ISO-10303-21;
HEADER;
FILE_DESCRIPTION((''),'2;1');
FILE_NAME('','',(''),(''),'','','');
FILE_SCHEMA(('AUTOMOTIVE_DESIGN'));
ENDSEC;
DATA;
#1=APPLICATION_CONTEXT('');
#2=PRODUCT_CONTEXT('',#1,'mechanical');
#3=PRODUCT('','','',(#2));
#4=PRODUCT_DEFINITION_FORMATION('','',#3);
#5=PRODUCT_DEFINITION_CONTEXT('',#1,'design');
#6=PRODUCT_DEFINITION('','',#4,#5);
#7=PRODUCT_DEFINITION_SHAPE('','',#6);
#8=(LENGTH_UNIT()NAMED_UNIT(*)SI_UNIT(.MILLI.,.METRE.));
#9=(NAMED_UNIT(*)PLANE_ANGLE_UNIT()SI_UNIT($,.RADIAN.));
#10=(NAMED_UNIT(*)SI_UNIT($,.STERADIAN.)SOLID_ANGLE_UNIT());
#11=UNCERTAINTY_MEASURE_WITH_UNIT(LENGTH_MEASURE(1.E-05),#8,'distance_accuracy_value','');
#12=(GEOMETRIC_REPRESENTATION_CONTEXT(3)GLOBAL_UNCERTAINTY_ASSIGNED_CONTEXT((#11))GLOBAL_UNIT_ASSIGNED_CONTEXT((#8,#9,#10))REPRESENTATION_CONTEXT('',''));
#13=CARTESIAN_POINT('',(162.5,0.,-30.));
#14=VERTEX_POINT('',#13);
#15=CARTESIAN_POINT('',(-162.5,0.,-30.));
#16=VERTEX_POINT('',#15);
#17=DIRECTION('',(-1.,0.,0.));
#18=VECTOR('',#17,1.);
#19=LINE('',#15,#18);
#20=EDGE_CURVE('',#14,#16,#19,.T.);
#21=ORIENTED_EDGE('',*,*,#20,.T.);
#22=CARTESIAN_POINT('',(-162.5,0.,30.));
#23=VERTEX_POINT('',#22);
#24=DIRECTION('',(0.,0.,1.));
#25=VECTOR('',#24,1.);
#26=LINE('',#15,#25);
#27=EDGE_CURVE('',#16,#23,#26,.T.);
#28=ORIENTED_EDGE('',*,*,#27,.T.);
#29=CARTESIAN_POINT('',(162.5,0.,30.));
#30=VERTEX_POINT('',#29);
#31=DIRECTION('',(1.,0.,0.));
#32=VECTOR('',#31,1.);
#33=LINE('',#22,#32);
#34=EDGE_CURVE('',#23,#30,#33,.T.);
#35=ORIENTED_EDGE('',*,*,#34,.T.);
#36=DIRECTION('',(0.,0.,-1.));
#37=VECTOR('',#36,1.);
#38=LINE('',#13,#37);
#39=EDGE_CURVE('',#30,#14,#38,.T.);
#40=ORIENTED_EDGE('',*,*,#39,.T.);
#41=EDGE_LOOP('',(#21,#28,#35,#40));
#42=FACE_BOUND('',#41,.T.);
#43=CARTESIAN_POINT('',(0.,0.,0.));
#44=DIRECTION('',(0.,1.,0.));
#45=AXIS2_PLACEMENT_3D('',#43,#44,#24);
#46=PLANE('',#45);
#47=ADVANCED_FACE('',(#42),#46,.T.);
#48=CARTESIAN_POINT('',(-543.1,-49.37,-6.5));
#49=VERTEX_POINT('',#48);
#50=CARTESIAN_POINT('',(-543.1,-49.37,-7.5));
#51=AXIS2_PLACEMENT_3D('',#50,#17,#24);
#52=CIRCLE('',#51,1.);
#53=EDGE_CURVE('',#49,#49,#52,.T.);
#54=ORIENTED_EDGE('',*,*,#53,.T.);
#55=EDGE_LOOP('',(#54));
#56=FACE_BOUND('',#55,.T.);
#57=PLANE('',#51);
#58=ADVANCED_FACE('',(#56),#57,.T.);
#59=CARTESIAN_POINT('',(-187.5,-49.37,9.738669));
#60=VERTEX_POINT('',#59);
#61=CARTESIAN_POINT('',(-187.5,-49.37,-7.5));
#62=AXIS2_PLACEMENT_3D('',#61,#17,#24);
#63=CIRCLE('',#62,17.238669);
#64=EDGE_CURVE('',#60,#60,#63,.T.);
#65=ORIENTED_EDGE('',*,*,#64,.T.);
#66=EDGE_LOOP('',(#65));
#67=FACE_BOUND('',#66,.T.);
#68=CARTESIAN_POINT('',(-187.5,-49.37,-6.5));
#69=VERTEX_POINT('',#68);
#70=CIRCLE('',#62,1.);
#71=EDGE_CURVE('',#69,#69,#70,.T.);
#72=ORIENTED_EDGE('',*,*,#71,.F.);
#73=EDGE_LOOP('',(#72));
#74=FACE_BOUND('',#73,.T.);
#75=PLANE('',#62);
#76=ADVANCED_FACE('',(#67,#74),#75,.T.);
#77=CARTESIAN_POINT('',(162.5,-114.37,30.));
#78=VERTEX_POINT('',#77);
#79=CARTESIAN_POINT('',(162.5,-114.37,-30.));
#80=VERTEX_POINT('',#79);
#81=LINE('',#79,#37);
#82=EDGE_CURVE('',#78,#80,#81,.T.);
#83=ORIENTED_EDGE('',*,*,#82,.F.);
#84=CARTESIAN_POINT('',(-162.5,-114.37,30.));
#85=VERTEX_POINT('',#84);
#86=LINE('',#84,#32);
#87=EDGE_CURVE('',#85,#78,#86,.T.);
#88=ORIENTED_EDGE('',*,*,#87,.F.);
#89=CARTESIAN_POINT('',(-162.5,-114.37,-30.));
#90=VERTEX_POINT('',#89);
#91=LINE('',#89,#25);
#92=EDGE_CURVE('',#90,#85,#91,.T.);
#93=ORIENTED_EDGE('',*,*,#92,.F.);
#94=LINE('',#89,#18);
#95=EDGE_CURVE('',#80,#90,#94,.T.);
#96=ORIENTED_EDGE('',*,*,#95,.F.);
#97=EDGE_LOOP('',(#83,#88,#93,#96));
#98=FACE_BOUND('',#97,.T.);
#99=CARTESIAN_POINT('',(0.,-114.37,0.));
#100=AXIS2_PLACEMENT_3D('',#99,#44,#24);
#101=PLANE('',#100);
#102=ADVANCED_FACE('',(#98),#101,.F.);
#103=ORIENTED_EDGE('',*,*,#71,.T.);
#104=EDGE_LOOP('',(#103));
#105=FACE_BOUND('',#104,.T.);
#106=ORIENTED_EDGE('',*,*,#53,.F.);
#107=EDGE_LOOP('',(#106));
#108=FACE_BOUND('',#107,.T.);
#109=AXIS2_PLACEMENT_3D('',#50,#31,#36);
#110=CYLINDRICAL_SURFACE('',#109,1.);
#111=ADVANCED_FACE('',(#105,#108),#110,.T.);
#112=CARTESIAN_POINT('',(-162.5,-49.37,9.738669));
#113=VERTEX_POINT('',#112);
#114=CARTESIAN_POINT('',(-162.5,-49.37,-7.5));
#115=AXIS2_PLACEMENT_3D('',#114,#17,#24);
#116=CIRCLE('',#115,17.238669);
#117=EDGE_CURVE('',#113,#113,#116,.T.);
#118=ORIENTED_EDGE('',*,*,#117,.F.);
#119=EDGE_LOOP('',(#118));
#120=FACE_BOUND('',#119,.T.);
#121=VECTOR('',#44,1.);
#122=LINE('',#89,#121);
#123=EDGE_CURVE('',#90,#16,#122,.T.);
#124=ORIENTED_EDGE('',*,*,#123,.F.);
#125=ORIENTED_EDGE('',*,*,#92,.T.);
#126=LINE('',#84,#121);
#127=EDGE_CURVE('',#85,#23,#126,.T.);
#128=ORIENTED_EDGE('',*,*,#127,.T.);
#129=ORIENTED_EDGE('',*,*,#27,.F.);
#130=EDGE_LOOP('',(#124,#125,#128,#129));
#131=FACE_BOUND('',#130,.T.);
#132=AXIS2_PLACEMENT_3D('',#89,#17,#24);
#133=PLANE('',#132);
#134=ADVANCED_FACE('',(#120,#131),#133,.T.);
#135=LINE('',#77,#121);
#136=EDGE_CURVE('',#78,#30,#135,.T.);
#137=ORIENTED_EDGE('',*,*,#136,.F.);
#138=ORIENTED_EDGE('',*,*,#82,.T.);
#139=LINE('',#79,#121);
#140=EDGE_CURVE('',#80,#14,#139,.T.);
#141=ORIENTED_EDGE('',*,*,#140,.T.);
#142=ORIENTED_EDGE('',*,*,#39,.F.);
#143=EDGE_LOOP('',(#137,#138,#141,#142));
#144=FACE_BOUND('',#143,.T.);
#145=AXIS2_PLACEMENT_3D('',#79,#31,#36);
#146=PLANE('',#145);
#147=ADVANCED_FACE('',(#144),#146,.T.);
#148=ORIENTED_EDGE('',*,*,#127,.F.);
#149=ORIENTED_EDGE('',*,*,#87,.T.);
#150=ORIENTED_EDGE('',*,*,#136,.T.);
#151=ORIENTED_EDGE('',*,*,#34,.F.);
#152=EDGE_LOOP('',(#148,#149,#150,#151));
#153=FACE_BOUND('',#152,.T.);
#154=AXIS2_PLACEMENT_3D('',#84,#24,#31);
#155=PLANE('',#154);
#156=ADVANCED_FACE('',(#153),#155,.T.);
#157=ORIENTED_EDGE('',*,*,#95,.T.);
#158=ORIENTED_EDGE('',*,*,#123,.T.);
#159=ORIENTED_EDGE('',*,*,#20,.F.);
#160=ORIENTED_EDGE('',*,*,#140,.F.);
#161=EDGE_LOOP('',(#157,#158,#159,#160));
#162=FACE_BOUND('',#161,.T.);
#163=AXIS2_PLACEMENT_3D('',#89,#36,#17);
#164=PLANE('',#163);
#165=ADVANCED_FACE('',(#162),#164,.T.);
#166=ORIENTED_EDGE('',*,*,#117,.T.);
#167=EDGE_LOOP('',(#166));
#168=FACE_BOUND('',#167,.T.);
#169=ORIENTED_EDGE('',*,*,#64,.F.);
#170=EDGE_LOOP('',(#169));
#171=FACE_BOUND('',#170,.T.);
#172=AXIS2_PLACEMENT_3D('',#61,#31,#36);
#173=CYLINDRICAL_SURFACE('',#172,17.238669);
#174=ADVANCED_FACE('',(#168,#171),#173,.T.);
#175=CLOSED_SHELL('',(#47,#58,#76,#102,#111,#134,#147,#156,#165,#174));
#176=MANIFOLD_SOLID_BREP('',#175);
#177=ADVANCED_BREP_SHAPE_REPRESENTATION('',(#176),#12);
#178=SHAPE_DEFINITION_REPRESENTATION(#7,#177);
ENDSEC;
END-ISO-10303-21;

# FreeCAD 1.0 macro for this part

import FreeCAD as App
import Part
import Sketcher

V = App.Vector


def add_polygon(sketch, points):
    """Adds a closed chain of lines whose ends are joined by coincident constraints."""
    first, n = sketch.GeometryCount, len(points)
    for a, b in zip(points, points[1:] + points[:1]):
        sketch.addGeometry(Part.LineSegment(App.Vector(*a, 0), App.Vector(*b, 0)), False)
    for i in range(n):
        sketch.addConstraint(Sketcher.Constraint("Coincident", first + i, 2, first + (i + 1) % n, 1))

doc = App.newDocument("Part")
body = doc.addObject("PartDesign::Body", "Body")

sketch1 = body.newObject("Sketcher::SketchObject", "Sketch")
sketch1.AttachmentSupport = (doc.getObject("XZ_Plane"), [""])
sketch1.MapMode = "FlatFace"
add_polygon(sketch1, [(-162.5, -30), (-162.5, 30), (162.5, 30), (162.5, -30)])
sketch1.addConstraint([
    Sketcher.Constraint("Vertical", 0),
    Sketcher.Constraint("Horizontal", 1),
    Sketcher.Constraint("Vertical", 2),
    Sketcher.Constraint("Horizontal", 3),
    Sketcher.Constraint("Symmetric", 0, 2, 2, 2, -1, 1),
    Sketcher.Constraint("DistanceX", 1, 1, 1, 2, 325.0),
    Sketcher.Constraint("DistanceY", 0, 1, 0, 2, 60.0),
])
pad1 = body.newObject("PartDesign::Pad", "Pad")
pad1.Profile = sketch1
pad1.Length = 114.37

sketch2 = body.newObject("Sketcher::SketchObject", "Sketch001")
sketch2.AttachmentSupport = (doc.getObject("YZ_Plane"), [""])
sketch2.MapMode = "FlatFace"
sketch2.AttachmentOffset = App.Placement(V(0, 0, -162.5), App.Rotation())
sketch2.addGeometry(Part.Circle(V(-49.37, -7.5, 0), V(0, 0, 1), 17.238669), False)
sketch2.addConstraint([
    Sketcher.Constraint("DistanceY", 0, 3, -1, 1, 7.5),
    Sketcher.Constraint("DistanceX", 0, 3, -1, 1, 49.37),
    Sketcher.Constraint("Diameter", 0, 34.477338),
])
pad2 = body.newObject("PartDesign::Pad", "Pad001")
pad2.Profile = sketch2
pad2.Length = 25
pad2.Reversed = True

sketch3 = body.newObject("Sketcher::SketchObject", "Sketch002")
sketch3.AttachmentSupport = (doc.getObject("YZ_Plane"), [""])
sketch3.MapMode = "FlatFace"
sketch3.AttachmentOffset = App.Placement(V(0, 0, -187.5), App.Rotation())
sketch3.addGeometry(Part.Circle(V(-49.37, -7.5, 0), V(0, 0, 1), 1), False)
sketch3.addConstraint([
    Sketcher.Constraint("Diameter", 0, 2.0),
    Sketcher.Constraint("DistanceY", 0, 3, -1, 1, 7.5),
    Sketcher.Constraint("DistanceX", 0, 3, -1, 1, 49.37),
])
pad3 = body.newObject("PartDesign::Pad", "Pad002")
pad3.Profile = sketch3
pad3.Length = 355.6
pad3.Reversed = True

doc.recompute()
